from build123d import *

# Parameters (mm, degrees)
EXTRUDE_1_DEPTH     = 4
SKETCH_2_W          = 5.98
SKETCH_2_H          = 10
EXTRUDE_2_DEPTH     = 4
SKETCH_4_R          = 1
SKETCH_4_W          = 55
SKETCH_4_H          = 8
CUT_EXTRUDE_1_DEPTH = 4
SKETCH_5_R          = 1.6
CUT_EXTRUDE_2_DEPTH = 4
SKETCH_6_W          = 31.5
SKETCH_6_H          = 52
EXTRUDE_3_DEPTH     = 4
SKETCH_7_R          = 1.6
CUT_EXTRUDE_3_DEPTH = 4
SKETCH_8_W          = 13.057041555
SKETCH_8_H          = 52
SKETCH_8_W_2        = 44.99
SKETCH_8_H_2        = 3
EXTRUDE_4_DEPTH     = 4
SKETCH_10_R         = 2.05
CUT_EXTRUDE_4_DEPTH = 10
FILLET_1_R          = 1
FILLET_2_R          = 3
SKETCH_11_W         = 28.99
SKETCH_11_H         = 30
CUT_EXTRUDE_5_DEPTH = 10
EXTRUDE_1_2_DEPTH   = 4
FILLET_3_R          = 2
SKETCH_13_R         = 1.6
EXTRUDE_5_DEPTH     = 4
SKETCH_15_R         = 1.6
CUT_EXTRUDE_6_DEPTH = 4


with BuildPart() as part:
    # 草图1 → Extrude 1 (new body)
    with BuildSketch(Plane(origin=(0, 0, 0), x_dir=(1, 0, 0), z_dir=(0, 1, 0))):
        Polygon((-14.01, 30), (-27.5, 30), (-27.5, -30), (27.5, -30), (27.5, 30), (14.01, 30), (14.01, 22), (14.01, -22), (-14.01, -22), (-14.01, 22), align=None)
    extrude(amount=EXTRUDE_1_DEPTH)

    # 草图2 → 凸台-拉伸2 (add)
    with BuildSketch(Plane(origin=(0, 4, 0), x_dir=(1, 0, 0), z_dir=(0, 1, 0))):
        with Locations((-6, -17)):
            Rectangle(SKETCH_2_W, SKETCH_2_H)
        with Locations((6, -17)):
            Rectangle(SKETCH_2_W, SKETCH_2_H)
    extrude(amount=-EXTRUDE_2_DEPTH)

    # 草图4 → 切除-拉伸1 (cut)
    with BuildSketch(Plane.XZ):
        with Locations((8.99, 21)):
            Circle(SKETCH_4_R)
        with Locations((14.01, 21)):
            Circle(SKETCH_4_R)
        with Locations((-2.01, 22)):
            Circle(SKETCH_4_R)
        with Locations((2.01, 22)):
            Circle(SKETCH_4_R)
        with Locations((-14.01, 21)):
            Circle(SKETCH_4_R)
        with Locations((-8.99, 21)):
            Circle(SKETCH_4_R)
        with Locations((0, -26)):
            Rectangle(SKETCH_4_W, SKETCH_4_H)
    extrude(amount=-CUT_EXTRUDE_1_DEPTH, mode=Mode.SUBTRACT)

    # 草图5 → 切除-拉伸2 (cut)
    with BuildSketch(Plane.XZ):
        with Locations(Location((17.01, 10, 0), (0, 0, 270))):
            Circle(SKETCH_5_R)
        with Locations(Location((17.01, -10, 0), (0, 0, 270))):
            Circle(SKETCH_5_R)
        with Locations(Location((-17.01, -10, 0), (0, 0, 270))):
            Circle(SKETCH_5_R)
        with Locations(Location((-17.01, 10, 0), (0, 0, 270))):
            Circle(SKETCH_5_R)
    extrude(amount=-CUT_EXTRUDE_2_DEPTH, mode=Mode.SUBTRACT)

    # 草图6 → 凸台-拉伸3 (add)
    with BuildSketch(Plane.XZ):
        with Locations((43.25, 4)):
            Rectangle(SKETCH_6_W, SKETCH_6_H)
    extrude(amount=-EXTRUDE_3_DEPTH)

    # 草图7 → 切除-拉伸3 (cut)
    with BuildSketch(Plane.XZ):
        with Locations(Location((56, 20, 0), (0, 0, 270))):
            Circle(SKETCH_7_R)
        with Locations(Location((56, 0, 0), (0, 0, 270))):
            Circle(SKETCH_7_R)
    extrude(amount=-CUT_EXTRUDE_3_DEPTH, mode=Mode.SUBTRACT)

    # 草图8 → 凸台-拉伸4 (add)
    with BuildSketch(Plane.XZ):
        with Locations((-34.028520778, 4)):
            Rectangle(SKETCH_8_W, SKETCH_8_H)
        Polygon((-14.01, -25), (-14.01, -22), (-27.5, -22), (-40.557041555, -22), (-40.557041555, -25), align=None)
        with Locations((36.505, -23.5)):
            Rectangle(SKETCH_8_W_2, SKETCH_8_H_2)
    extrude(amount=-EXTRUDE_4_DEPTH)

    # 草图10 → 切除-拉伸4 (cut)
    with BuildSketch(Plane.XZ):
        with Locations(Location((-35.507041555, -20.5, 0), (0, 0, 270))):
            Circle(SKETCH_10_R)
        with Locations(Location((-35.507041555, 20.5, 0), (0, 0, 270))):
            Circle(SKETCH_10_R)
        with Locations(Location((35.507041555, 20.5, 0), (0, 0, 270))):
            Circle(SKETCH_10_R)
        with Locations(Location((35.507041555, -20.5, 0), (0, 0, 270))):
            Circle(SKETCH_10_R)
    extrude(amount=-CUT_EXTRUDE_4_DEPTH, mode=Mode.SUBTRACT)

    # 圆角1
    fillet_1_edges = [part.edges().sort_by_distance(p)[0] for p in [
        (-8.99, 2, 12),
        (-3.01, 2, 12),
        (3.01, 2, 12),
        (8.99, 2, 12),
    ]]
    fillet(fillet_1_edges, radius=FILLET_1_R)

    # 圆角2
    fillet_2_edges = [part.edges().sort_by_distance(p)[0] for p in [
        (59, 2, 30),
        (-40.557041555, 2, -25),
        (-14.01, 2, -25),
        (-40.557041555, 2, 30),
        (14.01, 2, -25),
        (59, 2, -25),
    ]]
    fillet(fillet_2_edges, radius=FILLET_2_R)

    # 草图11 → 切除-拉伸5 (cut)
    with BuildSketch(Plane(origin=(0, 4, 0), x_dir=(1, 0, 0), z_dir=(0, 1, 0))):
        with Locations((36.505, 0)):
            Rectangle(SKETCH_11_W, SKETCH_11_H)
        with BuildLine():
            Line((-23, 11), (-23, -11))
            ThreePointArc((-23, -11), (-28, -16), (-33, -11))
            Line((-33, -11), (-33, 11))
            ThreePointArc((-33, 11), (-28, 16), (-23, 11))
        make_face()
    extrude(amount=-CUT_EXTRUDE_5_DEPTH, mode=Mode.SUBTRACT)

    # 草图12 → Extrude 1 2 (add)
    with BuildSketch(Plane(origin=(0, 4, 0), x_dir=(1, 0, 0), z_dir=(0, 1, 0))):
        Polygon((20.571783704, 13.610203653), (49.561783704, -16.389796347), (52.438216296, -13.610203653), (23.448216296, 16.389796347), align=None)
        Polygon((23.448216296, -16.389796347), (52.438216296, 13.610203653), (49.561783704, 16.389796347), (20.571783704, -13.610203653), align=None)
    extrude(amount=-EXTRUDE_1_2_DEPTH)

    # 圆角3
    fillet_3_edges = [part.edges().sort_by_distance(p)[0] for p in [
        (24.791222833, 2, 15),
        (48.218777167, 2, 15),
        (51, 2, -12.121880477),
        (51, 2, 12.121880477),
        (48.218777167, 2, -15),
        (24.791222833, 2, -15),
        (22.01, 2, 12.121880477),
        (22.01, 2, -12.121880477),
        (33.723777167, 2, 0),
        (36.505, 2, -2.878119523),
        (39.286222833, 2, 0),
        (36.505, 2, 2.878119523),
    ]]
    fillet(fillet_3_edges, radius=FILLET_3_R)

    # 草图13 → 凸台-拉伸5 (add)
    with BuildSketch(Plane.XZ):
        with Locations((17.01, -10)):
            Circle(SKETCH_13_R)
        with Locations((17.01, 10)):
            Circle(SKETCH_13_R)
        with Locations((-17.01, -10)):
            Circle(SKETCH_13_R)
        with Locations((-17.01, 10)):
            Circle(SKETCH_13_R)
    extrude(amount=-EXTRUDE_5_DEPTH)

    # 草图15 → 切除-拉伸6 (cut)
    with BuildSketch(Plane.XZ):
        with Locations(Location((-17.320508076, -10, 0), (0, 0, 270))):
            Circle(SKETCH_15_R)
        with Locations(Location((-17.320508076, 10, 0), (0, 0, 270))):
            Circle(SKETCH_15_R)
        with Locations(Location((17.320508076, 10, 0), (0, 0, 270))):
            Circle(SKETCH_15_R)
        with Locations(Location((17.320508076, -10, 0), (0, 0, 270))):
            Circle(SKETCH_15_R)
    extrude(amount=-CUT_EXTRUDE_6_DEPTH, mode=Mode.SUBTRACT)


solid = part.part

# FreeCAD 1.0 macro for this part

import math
import FreeCAD as App
import Part
import Sketcher
from FreeCAD import Vector


def edges_at(feature, points):
    """Names of the edges that pass closest to the given points."""
    edges = feature.Shape.Edges
    near = lambda p: min(range(len(edges)), key=lambda i: edges[i].distToShape(Part.Vertex(*p))[0])
    return sorted({f"Edge{near(p) + 1}" for p in points})


def add_polygon(sketch, points):
    """Adds a closed chain of lines whose ends are joined by coincident constraints."""
    first, n = sketch.GeometryCount, len(points)
    for a, b in zip(points, points[1:] + points[:1]):
        sketch.addGeometry(Part.LineSegment(App.Vector(*a, 0), App.Vector(*b, 0)), False)
    for i in range(n):
        sketch.addConstraint(Sketcher.Constraint("Coincident", first + i, 2, first + (i + 1) % n, 1))

doc = App.newDocument("Part")
body = doc.addObject("PartDesign::Body", "Body")

# Sketch on XZ plane
sketch1 = body.newObject("Sketcher::SketchObject", "Sketch")
sketch1.AttachmentSupport = (doc.getObject("XZ_Plane"), [""])
sketch1.MapMode = "FlatFace"
add_polygon(sketch1, [(-14, -30), (-28, -30), (-28, 30), (28, 30), (28, -30), (14, -30), (14, 22), (-14, 22)])  # lines 0-7
sketch1.addConstraint([
    Sketcher.Constraint("Horizontal", 0),
    Sketcher.Constraint("Vertical", 1),
    Sketcher.Constraint("Horizontal", 2),
    Sketcher.Constraint("Vertical", 3),
    Sketcher.Constraint("Horizontal", 4),
    Sketcher.Constraint("Vertical", 5),
    Sketcher.Constraint("Horizontal", 6),
    Sketcher.Constraint("Vertical", 7),
    Sketcher.Constraint("Symmetric", 0, 2, 2, 2, -1, 1),
    Sketcher.Constraint("Symmetric", 4, 2, 7, 2, -2),
    Sketcher.Constraint("DistanceX", 2, 1, 2, 2, 55.0),
    Sketcher.Constraint("DistanceY", 1, 1, 1, 2, 60.0),
    Sketcher.Constraint("DistanceY", 5, 1, 5, 2, 52.0),
    Sketcher.Constraint("DistanceX", 0, 2, 0, 1, 13.49),
])
pad1 = body.newObject("PartDesign::Pad", "Pad")
pad1.Profile = sketch1
pad1.Length = 4
pad1.Reversed = True

# Sketch on XZ plane
sketch2 = body.newObject("Sketcher::SketchObject", "Sketch001")
sketch2.AttachmentSupport = (doc.getObject("XZ_Plane"), [""])
sketch2.MapMode = "FlatFace"
sketch2.AttachmentOffset = App.Placement(Vector(0, 0, -4), App.Rotation())
add_polygon(sketch2, [(-9, 12), (-9, 22), (-3, 22), (-3, 12)])  # lines 0-3
add_polygon(sketch2, [(3, 12), (3, 22), (9, 22), (9, 12)])  # lines 4-7
sketch2.addConstraint([
    Sketcher.Constraint("Vertical", 0),
    Sketcher.Constraint("Horizontal", 1),
    Sketcher.Constraint("Vertical", 2),
    Sketcher.Constraint("Horizontal", 3),
    Sketcher.Constraint("Vertical", 4),
    Sketcher.Constraint("Horizontal", 5),
    Sketcher.Constraint("Vertical", 6),
    Sketcher.Constraint("Horizontal", 7),
    Sketcher.Constraint("Symmetric", 1, 2, 4, 2, -2),
    Sketcher.Constraint("Symmetric", 3, 2, 6, 2, -2),
    Sketcher.Constraint("DistanceY", 0, 1, 0, 2, 10.0),
    Sketcher.Constraint("DistanceY", -1, 1, 0, 2, 22.0),
    Sketcher.Constraint("DistanceX", 0, 2, 4, 2, 12.0),
    Sketcher.Constraint("DistanceX", 1, 1, 1, 2, 5.98),
])
pad2 = body.newObject("PartDesign::Pad", "Pad001")
pad2.Profile = sketch2
pad2.Length = 4

# Sketch on XZ plane
sketch3 = body.newObject("Sketcher::SketchObject", "Sketch002")
sketch3.AttachmentSupport = (doc.getObject("XZ_Plane"), [""])
sketch3.MapMode = "FlatFace"
sketch3.addGeometry(Part.Circle(Vector(9, 21, 0), Vector(0, 0, 1), 1), False)  # 0
sketch3.addGeometry(Part.Circle(Vector(14, 21, 0), Vector(0, 0, 1), 1), False)  # 1
sketch3.addGeometry(Part.Circle(Vector(-2, 22, 0), Vector(0, 0, 1), 1), False)  # 2
sketch3.addGeometry(Part.Circle(Vector(2, 22, 0), Vector(0, 0, 1), 1), False)  # 3
sketch3.addGeometry(Part.Circle(Vector(-14, 21, 0), Vector(0, 0, 1), 1), False)  # 4
sketch3.addGeometry(Part.Circle(Vector(-9, 21, 0), Vector(0, 0, 1), 1), False)  # 5
add_polygon(sketch3, [(-27.5, -22), (-27.5, -30), (27.5, -30), (27.5, -22)])  # lines 6-9
sketch3.addConstraint([
    Sketcher.Constraint("Vertical", 6),
    Sketcher.Constraint("Horizontal", 7),
    Sketcher.Constraint("Vertical", 8),
    Sketcher.Constraint("Horizontal", 9),
    Sketcher.Constraint("Equal", 0, 1),
    Sketcher.Constraint("Equal", 1, 2),
    Sketcher.Constraint("Equal", 2, 3),
    Sketcher.Constraint("Equal", 3, 4),
    Sketcher.Constraint("Equal", 4, 5),
    Sketcher.Constraint("Symmetric", 2, 3, 3, 3, -2),
    Sketcher.Constraint("Symmetric", 1, 3, 4, 3, -2),
    Sketcher.Constraint("Symmetric", 0, 3, 5, 3, -2),
    Sketcher.Constraint("Horizontal", 0, 3, 1, 3),
    Sketcher.Constraint("Diameter", 0, 2.0),
    Sketcher.Constraint("DistanceX", 7, 1, 7, 2, 55.0),
    Sketcher.Constraint("DistanceY", 6, 2, 6, 1, 8.0),
    Sketcher.Constraint("DistanceY", -1, 1, 0, 3, 21.0),
    Sketcher.Constraint("DistanceY", -1, 1, 2, 3, 22.0),
    Sketcher.Constraint("DistanceY", 6, 2, -1, 1, 30.0),
    Sketcher.Constraint("DistanceX", 2, 3, 0, 3, 11.0),
    Sketcher.Constraint("DistanceX", 3, 3, 1, 3, 12.0),
    Sketcher.Constraint("DistanceX", 6, 2, -1, 1, 27.5),
    Sketcher.Constraint("DistanceX", -1, 1, 0, 3, 8.99),
])
pocket1 = body.newObject("PartDesign::Pocket", "Pocket")
pocket1.Profile = sketch3
pocket1.Length = 4

# Sketch on XZ plane
sketch4 = body.newObject("Sketcher::SketchObject", "Sketch003")
sketch4.AttachmentSupport = (doc.getObject("XZ_Plane"), [""])
sketch4.MapMode = "FlatFace"
sketch4.addGeometry([
    Part.Circle(Vector(17, 10, 0), Vector(0, 0, 1), 1.6),
    Part.Circle(Vector(17, -10, 0), Vector(0, 0, 1), 1.6),
    Part.Circle(Vector(-17, -10, 0), Vector(0, 0, 1), 1.6),
    Part.Circle(Vector(-17, 10, 0), Vector(0, 0, 1), 1.6),
], False)
sketch4.addConstraint([
    Sketcher.Constraint("Equal", 0, 1),
    Sketcher.Constraint("Equal", 1, 2),
    Sketcher.Constraint("Equal", 2, 3),
    Sketcher.Constraint("Symmetric", 0, 3, 2, 3, -1, 1),
    Sketcher.Constraint("Symmetric", 1, 3, 3, 3, -1, 1),
    Sketcher.Constraint("Symmetric", 1, 3, 2, 3, -2),
    Sketcher.Constraint("Diameter", 0, 3.2),
    Sketcher.Constraint("DistanceY", -1, 1, 0, 3, 10.0),
    Sketcher.Constraint("DistanceX", -1, 1, 0, 3, 17.01),
])
pocket2 = body.newObject("PartDesign::Pocket", "Pocket001")
pocket2.Profile = sketch4
pocket2.Length = 4

# Sketch on XZ plane
sketch5 = body.newObject("Sketcher::SketchObject", "Sketch004")
sketch5.AttachmentSupport = (doc.getObject("XZ_Plane"), [""])
sketch5.MapMode = "FlatFace"
add_polygon(sketch5, [(28, 30), (28, -22), (59, -22), (59, 30)])  # lines 0-3
sketch5.addConstraint([
    Sketcher.Constraint("Vertical", 0),
    Sketcher.Constraint("Horizontal", 1),
    Sketcher.Constraint("Vertical", 2),
    Sketcher.Constraint("Horizontal", 3),
    Sketcher.Constraint("DistanceY", 0, 2, 0, 1, 52.0),
    Sketcher.Constraint("DistanceX", 1, 1, 1, 2, 31.5),
    Sketcher.Constraint("DistanceY", 0, 2, -1, 1, 22.0),
    Sketcher.Constraint("DistanceX", -1, 1, 1, 2, 59.0),
])
pad3 = body.newObject("PartDesign::Pad", "Pad002")
pad3.Profile = sketch5
pad3.Length = 4
pad3.Reversed = True

# Sketch on XZ plane
sketch6 = body.newObject("Sketcher::SketchObject", "Sketch005")
sketch6.AttachmentSupport = (doc.getObject("XZ_Plane"), [""])
sketch6.MapMode = "FlatFace"
sketch6.addGeometry([
    Part.Circle(Vector(56, 20, 0), Vector(0, 0, 1), 1.6),
    Part.Circle(Vector(56, 0, 0), Vector(0, 0, 1), 1.6),
], False)
sketch6.addConstraint([
    Sketcher.Constraint("Equal", 0, 1),
    Sketcher.Constraint("PointOnObject", 1, 3, -1),
    Sketcher.Constraint("Vertical", 0, 3, 1, 3),
    Sketcher.Constraint("Diameter", 0, 3.2),
    Sketcher.Constraint("DistanceX", -1, 1, 0, 3, 56.0),
    Sketcher.Constraint("DistanceY", -1, 1, 0, 3, 20.0),
])
pocket3 = body.newObject("PartDesign::Pocket", "Pocket002")
pocket3.Profile = sketch6
pocket3.Length = 4

# Sketch on XZ plane
sketch7 = body.newObject("Sketcher::SketchObject", "Sketch006")
sketch7.AttachmentSupport = (doc.getObject("XZ_Plane"), [""])
sketch7.MapMode = "FlatFace"
add_polygon(sketch7, [(-40.6, 30), (-40.6, -25), (-14, -25), (-14, -22), (-27.5, -22), (-27.5, 30)])  # lines 0-5
add_polygon(sketch7, [(14, -22), (14, -25), (59, -25), (59, -22)])  # lines 6-9
sketch7.addConstraint([
    Sketcher.Constraint("Vertical", 0),
    Sketcher.Constraint("Horizontal", 1),
    Sketcher.Constraint("Vertical", 2),
    Sketcher.Constraint("Horizontal", 3),
    Sketcher.Constraint("Vertical", 4),
    Sketcher.Constraint("Horizontal", 5),
    Sketcher.Constraint("Vertical", 6),
    Sketcher.Constraint("Horizontal", 7),
    Sketcher.Constraint("Vertical", 8),
    Sketcher.Constraint("Horizontal", 9),
    Sketcher.Constraint("Symmetric", 1, 2, 6, 2, -2),
    Sketcher.Constraint("Horizontal", 3, 2, 8, 2),
    Sketcher.Constraint("DistanceY", 0, 2, 0, 1, 55.0),
    Sketcher.Constraint("DistanceY", 2, 1, 2, 2, 3.0),
    Sketcher.Constraint("DistanceY", 0, 2, -1, 1, 25.0),
    Sketcher.Constraint("DistanceX", -1, 1, 7, 2, 59.0),
    Sketcher.Constraint("DistanceX", 3, 2, 3, 1, 13.49),
    Sketcher.Constraint("DistanceX", 7, 1, 7, 2, 44.99),
    Sketcher.Constraint("DistanceX", 1, 1, 1, 2, 26.547042),
])
pad4 = body.newObject("PartDesign::Pad", "Pad003")
pad4.Profile = sketch7
pad4.Length = 4
pad4.Reversed = True

# Sketch on XZ plane
sketch8 = body.newObject("Sketcher::SketchObject", "Sketch007")
sketch8.AttachmentSupport = (doc.getObject("XZ_Plane"), [""])
sketch8.MapMode = "FlatFace"
sketch8.addGeometry([
    Part.Circle(Vector(-35.5, -20.5, 0), Vector(0, 0, 1), 2),
    Part.Circle(Vector(-35.5, 20.5, 0), Vector(0, 0, 1), 2),
    Part.Circle(Vector(35.5, 20.5, 0), Vector(0, 0, 1), 2),
    Part.Circle(Vector(35.5, -20.5, 0), Vector(0, 0, 1), 2),
], False)
sketch8.addConstraint([
    Sketcher.Constraint("Equal", 0, 1),
    Sketcher.Constraint("Equal", 1, 2),
    Sketcher.Constraint("Equal", 2, 3),
    Sketcher.Constraint("Symmetric", 0, 3, 2, 3, -1, 1),
    Sketcher.Constraint("Symmetric", 1, 3, 3, 3, -1, 1),
    Sketcher.Constraint("Symmetric", 1, 3, 2, 3, -2),
    Sketcher.Constraint("Diameter", 0, 4.1),
    Sketcher.Constraint("DistanceY", 0, 3, 1, 3, 41.0),
    Sketcher.Constraint("DistanceX", 0, 3, -1, 1, 35.507042),
])
pocket4 = body.newObject("PartDesign::Pocket", "Pocket003")
pocket4.Profile = sketch8
pocket4.Length = 10
doc.recompute()

fillet = body.newObject("PartDesign::Fillet", "Fillet")
fillet.Base = (pocket4, edges_at(pocket4, [
    (-8.99, 2, 12),
    (-3.01, 2, 12),
    (3.01, 2, 12),
    (8.99, 2, 12),
]))
fillet.Radius = 1
doc.recompute()

fillet2 = body.newObject("PartDesign::Fillet", "Fillet001")
fillet2.Base = (fillet, edges_at(fillet, [
    (59, 2, 30),
    (-40.557, 2, -25),
    (-14.01, 2, -25),
    (-40.557, 2, 30),
    (14.01, 2, -25),
    (59, 2, -25),
]))
fillet2.Radius = 3

# Sketch on XZ plane
sketch9 = body.newObject("Sketcher::SketchObject", "Sketch008")
sketch9.AttachmentSupport = (doc.getObject("XZ_Plane"), [""])
sketch9.MapMode = "FlatFace"
sketch9.AttachmentOffset = App.Placement(Vector(0, 0, -4), App.Rotation())
add_polygon(sketch9, [(22, -15), (22, 15), (51, 15), (51, -15)])  # lines 0-3
sketch9.addGeometry(Part.LineSegment(Vector(-23, 11, 0), Vector(-23, -11, 0)), False)  # 4
sketch9.addGeometry(Part.ArcOfCircle(Part.Circle(Vector(-28, -11, 0), Vector(0, 0, 1), 5), math.radians(180), math.radians(360)), False)  # 5
sketch9.addGeometry(Part.LineSegment(Vector(-33, -11, 0), Vector(-33, 11, 0)), False)  # 6
sketch9.addGeometry(Part.ArcOfCircle(Part.Circle(Vector(-28, 11, 0), Vector(0, 0, 1), 5), math.radians(0), math.radians(180)), False)  # 7
sketch9.addConstraint([
    Sketcher.Constraint("Tangent", 4, 2, 5, 2),
    Sketcher.Constraint("Tangent", 5, 1, 6, 1),
    Sketcher.Constraint("Tangent", 6, 2, 7, 2),
    Sketcher.Constraint("Tangent", 7, 1, 4, 1),
    Sketcher.Constraint("Vertical", 0),
    Sketcher.Constraint("Horizontal", 1),
    Sketcher.Constraint("Vertical", 2),
    Sketcher.Constraint("Horizontal", 3),
    Sketcher.Constraint("Vertical", 4),
    Sketcher.Constraint("Vertical", 6),
    Sketcher.Constraint("Radius", 5, 5.0),
    Sketcher.Constraint("DistanceY", 0, 1, 0, 2, 30.0),
    Sketcher.Constraint("DistanceY", 4, 2, 4, 1, 22.0),
    Sketcher.Constraint("DistanceX", 5, 3, -1, 1, 28.0),
    Sketcher.Constraint("DistanceY", 5, 3, -1, 1, 11.0),
    Sketcher.Constraint("DistanceY", -1, 1, 0, 2, 15.0),
    Sketcher.Constraint("DistanceX", -1, 1, 1, 2, 51.0),
    Sketcher.Constraint("DistanceX", 1, 1, 1, 2, 28.99),
])
pocket5 = body.newObject("PartDesign::Pocket", "Pocket004")
pocket5.Profile = sketch9
pocket5.Length = 10
pocket5.Reversed = True

# Sketch on XZ plane
sketch10 = body.newObject("Sketcher::SketchObject", "Sketch009")
sketch10.AttachmentSupport = (doc.getObject("XZ_Plane"), [""])
sketch10.MapMode = "FlatFace"
sketch10.AttachmentOffset = App.Placement(Vector(0, 0, -4), App.Rotation())
add_polygon(sketch10, [(23.4, -16.4), (20.6, -13.6), (33.7, 0), (20.6, 13.6), (23.4, 16.4), (36.5, 2.9), (49.6, 16.4), (52.4, 13.6), (39.3, 0), (52.4, -13.6), (49.6, -16.4), (36.5, -2.9)])  # lines 0-11
sketch10.addConstraint([
    Sketcher.Constraint("Symmetric", 0, 2, 2, 2, -1),
    Sketcher.Constraint("Symmetric", 6, 2, 8, 2, -1),
    Sketcher.Constraint("Symmetric", 5, 2, 9, 2, -1),
    Sketcher.Constraint("Symmetric", 4, 2, 10, 2, -1),
    Sketcher.Constraint("Symmetric", 3, 2, 11, 2, -1),
    Sketcher.Constraint("PointOnObject", 1, 2, -1),
    Sketcher.Constraint("PointOnObject", 7, 2, -1),
    Sketcher.Constraint("Perpendicular", 0, 1),
    Sketcher.Constraint("Perpendicular", 3, 4),
    Sketcher.Constraint("Parallel", 1, 5),
    Sketcher.Constraint("Perpendicular", 5, 6),
    Sketcher.Constraint("Perpendicular", 6, 7),
    Sketcher.Constraint("Horizontal", 3, 2, 5, 2),
    Sketcher.Constraint("Horizontal", 2, 2, 6, 2),
    Sketcher.Constraint("Distance", 0, 4.0),
    Sketcher.Constraint("DistanceY", 0, 2, 3, 2, 30.0),
    Sketcher.Constraint("DistanceX", 2, 2, 5, 2, 28.99),
    Sketcher.Constraint("DistanceX", -1, 1, 4, 2, 36.505),
    Sketcher.Constraint("DistanceY", -1, 1, 4, 2, 2.87812),
])
pad5 = body.newObject("PartDesign::Pad", "Pad004")
pad5.Profile = sketch10
pad5.Length = 4
doc.recompute()

fillet3 = body.newObject("PartDesign::Fillet", "Fillet002")
fillet3.Base = (pad5, edges_at(pad5, [
    (24.791, 2, 15),
    (48.219, 2, 15),
    (51, 2, -12.122),
    (51, 2, 12.122),
    (48.219, 2, -15),
    (24.791, 2, -15),
    (22.01, 2, 12.122),
    (22.01, 2, -12.122),
    (33.724, 2, 0),
    (36.505, 2, -2.878),
    (39.286, 2, 0),
    (36.505, 2, 2.878),
]))
fillet3.Radius = 2

# Sketch on XZ plane
sketch11 = body.newObject("Sketcher::SketchObject", "Sketch010")
sketch11.AttachmentSupport = (doc.getObject("XZ_Plane"), [""])
sketch11.MapMode = "FlatFace"
sketch11.addGeometry([
    Part.Circle(Vector(17, -10, 0), Vector(0, 0, 1), 1.6),
    Part.Circle(Vector(17, 10, 0), Vector(0, 0, 1), 1.6),
    Part.Circle(Vector(-17, -10, 0), Vector(0, 0, 1), 1.6),
    Part.Circle(Vector(-17, 10, 0), Vector(0, 0, 1), 1.6),
], False)
sketch11.addConstraint([
    Sketcher.Constraint("Equal", 0, 1),
    Sketcher.Constraint("Equal", 1, 2),
    Sketcher.Constraint("Equal", 2, 3),
    Sketcher.Constraint("Symmetric", 1, 3, 2, 3, -1, 1),
    Sketcher.Constraint("Symmetric", 0, 3, 3, 3, -1, 1),
    Sketcher.Constraint("Symmetric", 0, 3, 2, 3, -2),
    Sketcher.Constraint("Diameter", 0, 3.2),
    Sketcher.Constraint("DistanceY", 0, 3, -1, 1, 10.0),
    Sketcher.Constraint("DistanceX", -1, 1, 0, 3, 17.01),
])
pad6 = body.newObject("PartDesign::Pad", "Pad005")
pad6.Profile = sketch11
pad6.Length = 4
pad6.Reversed = True

# Sketch on XZ plane
sketch12 = body.newObject("Sketcher::SketchObject", "Sketch011")
sketch12.AttachmentSupport = (doc.getObject("XZ_Plane"), [""])
sketch12.MapMode = "FlatFace"
sketch12.addGeometry([
    Part.Circle(Vector(-17.3, -10, 0), Vector(0, 0, 1), 1.6),
    Part.Circle(Vector(-17.3, 10, 0), Vector(0, 0, 1), 1.6),
    Part.Circle(Vector(17.3, 10, 0), Vector(0, 0, 1), 1.6),
    Part.Circle(Vector(17.3, -10, 0), Vector(0, 0, 1), 1.6),
], False)
sketch12.addConstraint([
    Sketcher.Constraint("Equal", 0, 1),
    Sketcher.Constraint("Equal", 1, 2),
    Sketcher.Constraint("Equal", 2, 3),
    Sketcher.Constraint("Symmetric", 0, 3, 2, 3, -1, 1),
    Sketcher.Constraint("Symmetric", 1, 3, 3, 3, -1, 1),
    Sketcher.Constraint("Symmetric", 1, 3, 2, 3, -2),
    Sketcher.Constraint("Diameter", 0, 3.2),
    Sketcher.Constraint("DistanceY", 0, 3, -1, 1, 10.0),
    Sketcher.Constraint("DistanceX", 0, 3, -1, 1, 17.320508),
])
pocket6 = body.newObject("PartDesign::Pocket", "Pocket005")
pocket6.Profile = sketch12
pocket6.Length = 4

doc.recompute()
